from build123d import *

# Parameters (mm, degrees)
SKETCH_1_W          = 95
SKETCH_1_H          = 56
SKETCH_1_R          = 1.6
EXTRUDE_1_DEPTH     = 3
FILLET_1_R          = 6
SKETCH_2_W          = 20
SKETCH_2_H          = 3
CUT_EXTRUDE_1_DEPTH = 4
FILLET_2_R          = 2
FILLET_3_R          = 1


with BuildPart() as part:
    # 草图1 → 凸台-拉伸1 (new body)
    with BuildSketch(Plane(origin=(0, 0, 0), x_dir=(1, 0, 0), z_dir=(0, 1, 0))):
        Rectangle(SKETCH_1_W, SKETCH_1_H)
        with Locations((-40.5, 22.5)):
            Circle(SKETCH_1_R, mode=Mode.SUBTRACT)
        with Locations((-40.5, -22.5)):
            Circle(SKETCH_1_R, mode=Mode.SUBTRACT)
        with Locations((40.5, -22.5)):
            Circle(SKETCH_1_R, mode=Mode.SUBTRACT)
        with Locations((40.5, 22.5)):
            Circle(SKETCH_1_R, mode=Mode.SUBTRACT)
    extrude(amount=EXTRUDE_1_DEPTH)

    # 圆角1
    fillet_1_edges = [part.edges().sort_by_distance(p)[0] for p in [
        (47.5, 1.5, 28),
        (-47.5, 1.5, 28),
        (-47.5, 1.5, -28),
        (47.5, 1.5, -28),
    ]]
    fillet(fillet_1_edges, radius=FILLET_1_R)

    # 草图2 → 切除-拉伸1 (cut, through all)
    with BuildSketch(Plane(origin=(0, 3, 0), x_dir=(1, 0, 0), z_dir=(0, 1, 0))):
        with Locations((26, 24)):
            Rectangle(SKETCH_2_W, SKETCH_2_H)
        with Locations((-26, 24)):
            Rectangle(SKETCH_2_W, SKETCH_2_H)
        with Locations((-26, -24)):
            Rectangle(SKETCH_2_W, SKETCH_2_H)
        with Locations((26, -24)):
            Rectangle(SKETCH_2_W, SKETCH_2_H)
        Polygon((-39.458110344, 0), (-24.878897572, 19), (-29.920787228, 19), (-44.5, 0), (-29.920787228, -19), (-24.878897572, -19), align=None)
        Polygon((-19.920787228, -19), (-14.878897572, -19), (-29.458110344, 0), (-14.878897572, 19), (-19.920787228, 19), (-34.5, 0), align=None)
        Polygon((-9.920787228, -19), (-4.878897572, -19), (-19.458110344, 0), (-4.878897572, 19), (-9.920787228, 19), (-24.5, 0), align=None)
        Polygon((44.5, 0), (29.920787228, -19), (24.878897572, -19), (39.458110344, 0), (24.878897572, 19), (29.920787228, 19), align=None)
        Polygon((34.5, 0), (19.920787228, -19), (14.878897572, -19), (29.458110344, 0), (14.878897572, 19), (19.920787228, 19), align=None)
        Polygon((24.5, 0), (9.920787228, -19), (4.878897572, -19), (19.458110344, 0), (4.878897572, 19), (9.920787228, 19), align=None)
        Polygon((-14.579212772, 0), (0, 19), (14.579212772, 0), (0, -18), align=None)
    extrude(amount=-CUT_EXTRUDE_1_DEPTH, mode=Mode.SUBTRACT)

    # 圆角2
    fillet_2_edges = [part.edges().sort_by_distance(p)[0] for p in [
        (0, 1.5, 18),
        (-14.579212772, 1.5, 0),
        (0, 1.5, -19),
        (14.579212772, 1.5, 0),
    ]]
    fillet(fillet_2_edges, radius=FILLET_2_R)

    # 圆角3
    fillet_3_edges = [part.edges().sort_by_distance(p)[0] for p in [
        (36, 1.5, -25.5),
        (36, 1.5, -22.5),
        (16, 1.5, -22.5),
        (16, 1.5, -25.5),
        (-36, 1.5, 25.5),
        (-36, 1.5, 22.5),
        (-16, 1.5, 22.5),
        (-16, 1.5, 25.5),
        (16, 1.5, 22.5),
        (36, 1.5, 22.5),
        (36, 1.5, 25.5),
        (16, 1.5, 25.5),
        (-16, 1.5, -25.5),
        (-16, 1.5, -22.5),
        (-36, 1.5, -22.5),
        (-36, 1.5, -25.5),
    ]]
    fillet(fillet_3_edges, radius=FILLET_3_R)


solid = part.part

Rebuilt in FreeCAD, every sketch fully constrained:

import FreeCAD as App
import Part
import Sketcher
from FreeCAD import Vector
Q = App.Units.Quantity


def edges_at(feature, points):
    """Names of the edges that pass closest to the given points."""
    edges = feature.Shape.Edges
    near = lambda p: min(range(len(edges)), key=lambda i: edges[i].distToShape(Part.Vertex(*p))[0])
    return sorted({f"Edge{near(p) + 1}" for p in points})


def add_polygon(sketch, points):
    """Adds a closed chain of lines whose ends are joined by coincident constraints."""
    first, n = sketch.GeometryCount, len(points)
    for a, b in zip(points, points[1:] + points[:1]):
        sketch.addGeometry(Part.LineSegment(App.Vector(*a, 0), App.Vector(*b, 0)), False)
    for i in range(n):
        sketch.addConstraint(Sketcher.Constraint("Coincident", first + i, 2, first + (i + 1) % n, 1))

doc = App.newDocument("Part")
params = doc.addObject("Spreadsheet::Sheet", "Params")
for row, (alias, value) in enumerate([
    ("sketch1_diameter", "3.2 mm"),
    ("sketch1_width", "95 mm"),
    ("sketch1_height", "56 mm"),
    ("pad1_length", "3 mm"),
    ("fillet_radius", "6 mm"),
    ("sketch2_width", "20 mm"),
    ("sketch2_height", "3 mm"),
    ("fillet2_radius", "2 mm"),
    ("fillet3_radius", "1 mm"),
], start=1):
    params.set(f"A{row}", alias)
    params.set(f"B{row}", "=" + value)
    params.setAlias(f"B{row}", alias)

body = doc.addObject("PartDesign::Body", "Body")

# Sketch on XZ plane
sketch1 = body.newObject("Sketcher::SketchObject", "Sketch")
sketch1.AttachmentSupport = (doc.getObject("XZ_Plane"), [""])
sketch1.MapMode = "FlatFace"
add_polygon(sketch1, [(-47.5, -28), (-47.5, 28), (47.5, 28), (47.5, -28)])  # lines 0-3
sketch1.addGeometry(Part.Circle(Vector(-40.5, 22.5, 0), Vector(0, 0, 1), 1.6), False)  # 4
sketch1.addGeometry(Part.Circle(Vector(40.5, 22.5, 0), Vector(0, 0, 1), 1.6), False)  # 5
sketch1.addGeometry(Part.Circle(Vector(-40.5, -22.5, 0), Vector(0, 0, 1), 1.6), False)  # 6
sketch1.addGeometry(Part.Circle(Vector(40.5, -22.5, 0), Vector(0, 0, 1), 1.6), False)  # 7
sketch1.addConstraint([
    Sketcher.Constraint("Vertical", 0),
    Sketcher.Constraint("Horizontal", 1),
    Sketcher.Constraint("Vertical", 2),
    Sketcher.Constraint("Horizontal", 3),
    Sketcher.Constraint("Equal", 4, 5),
    Sketcher.Constraint("Equal", 5, 6),
    Sketcher.Constraint("Equal", 6, 7),
    Sketcher.Constraint("Symmetric", 5, 3, 6, 3, -1, 1),
    Sketcher.Constraint("Symmetric", 4, 3, 7, 3, -1, 1),
    Sketcher.Constraint("Symmetric", 0, 2, 2, 2, -1, 1),
    Sketcher.Constraint("Symmetric", 4, 3, 5, 3, -2),
    Sketcher.Constraint("Diameter", 4, 3.2),
    Sketcher.Constraint("DistanceX", 1, 1, 1, 2, 95.0),
    Sketcher.Constraint("DistanceY", 0, 1, 0, 2, 56.0),
    Sketcher.Constraint("DistanceX", 4, 3, 5, 3, 81.0),
    Sketcher.Constraint("DistanceY", 6, 3, 4, 3, 45.0),
])
sketch1.setExpression("Constraints[15]", "Params.sketch1_diameter")
sketch1.setExpression("Constraints[16]", "Params.sketch1_width")
sketch1.setExpression("Constraints[17]", "Params.sketch1_height")
pad1 = body.newObject("PartDesign::Pad", "Pad")
pad1.Profile = sketch1
pad1.setExpression("Length", "Params.pad1_length")
pad1.Reversed = True
doc.recompute()

fillet = body.newObject("PartDesign::Fillet", "Fillet")
fillet.Base = (pad1, edges_at(pad1, [
    (47.5, 1.5, 28),
    (-47.5, 1.5, 28),
    (-47.5, 1.5, -28),
    (47.5, 1.5, -28),
]))
fillet.setExpression("Radius", "Params.fillet_radius")

# Sketch on XZ plane
sketch2 = body.newObject("Sketcher::SketchObject", "Sketch001")
sketch2.AttachmentSupport = (doc.getObject("XZ_Plane"), [""])
sketch2.MapMode = "FlatFace"
sketch2.AttachmentOffset = App.Placement(Vector(0, 0, -3), App.Rotation())
add_polygon(sketch2, [(16, -25.5), (16, -22.5), (36, -22.5), (36, -25.5)])  # lines 0-3
add_polygon(sketch2, [(-36, -25.5), (-36, -22.5), (-16, -22.5), (-16, -25.5)])  # lines 4-7
add_polygon(sketch2, [(-36, 22.5), (-36, 25.5), (-16, 25.5), (-16, 22.5)])  # lines 8-11
add_polygon(sketch2, [(16, 22.5), (16, 25.5), (36, 25.5), (36, 22.5)])  # lines 12-15
add_polygon(sketch2, [(-39.5, 0), (-24.9, -19), (-29.9, -19), (-44.5, 0), (-29.9, 19), (-24.9, 19)])  # lines 16-21
add_polygon(sketch2, [(-19.9, 19), (-14.9, 19), (-29.5, 0), (-14.9, -19), (-19.9, -19), (-34.5, 0)])  # lines 22-27
add_polygon(sketch2, [(-9.9, 19), (-4.9, 19), (-19.5, 0), (-4.9, -19), (-9.9, -19), (-24.5, 0)])  # lines 28-33
add_polygon(sketch2, [(29.9, 19), (44.5, 0), (29.9, -19), (24.9, -19), (39.5, 0), (24.9, 19)])  # lines 34-39
add_polygon(sketch2, [(19.9, 19), (34.5, 0), (19.9, -19), (14.9, -19), (29.5, 0), (14.9, 19)])  # lines 40-45
add_polygon(sketch2, [(9.9, 19), (24.5, 0), (9.9, -19), (4.9, -19), (19.5, 0), (4.9, 19)])  # lines 46-51
add_polygon(sketch2, [(0, -19), (-14.6, 0), (0, 18), (14.6, 0)])  # lines 52-55
sketch2.addConstraint([
    Sketcher.Constraint("Vertical", 0),
    Sketcher.Constraint("Horizontal", 1),
    Sketcher.Constraint("Vertical", 2),
    Sketcher.Constraint("Horizontal", 3),
    Sketcher.Constraint("Vertical", 4),
    Sketcher.Constraint("Horizontal", 5),
    Sketcher.Constraint("Vertical", 6),
    Sketcher.Constraint("Horizontal", 7),
    Sketcher.Constraint("Vertical", 8),
    Sketcher.Constraint("Horizontal", 9),
    Sketcher.Constraint("Vertical", 10),
    Sketcher.Constraint("Horizontal", 11),
    Sketcher.Constraint("Vertical", 12),
    Sketcher.Constraint("Horizontal", 13),
    Sketcher.Constraint("Vertical", 14),
    Sketcher.Constraint("Horizontal", 15),
    Sketcher.Constraint("Horizontal", 17),
    Sketcher.Constraint("Horizontal", 20),
    Sketcher.Constraint("Horizontal", 22),
    Sketcher.Constraint("Horizontal", 25),
    Sketcher.Constraint("Horizontal", 28),
    Sketcher.Constraint("Horizontal", 31),
    Sketcher.Constraint("Horizontal", 36),
    Sketcher.Constraint("Horizontal", 39),
    Sketcher.Constraint("Horizontal", 42),
    Sketcher.Constraint("Horizontal", 45),
    Sketcher.Constraint("Horizontal", 48),
    Sketcher.Constraint("Horizontal", 51),
    Sketcher.Constraint("Symmetric", 2, 2, 8, 2, -1, 1),
    Sketcher.Constraint("Symmetric", 0, 2, 10, 2, -1, 1),
    Sketcher.Constraint("Symmetric", 6, 2, 12, 2, -1, 1),
    Sketcher.Constraint("Symmetric", 4, 2, 14, 2, -1, 1),
    Sketcher.Constraint("Symmetric", 18, 2, 34, 2, -1, 1),
    Sketcher.Constraint("Symmetric", 19, 2, 35, 2, -1, 1),
    Sketcher.Constraint("Symmetric", 21, 2, 37, 2, -1, 1),
    Sketcher.Constraint("Symmetric", 16, 2, 38, 2, -1, 1),
    Sketcher.Constraint("Symmetric", 26, 2, 40, 2, -1, 1),
    Sketcher.Constraint("Symmetric", 27, 2, 41, 2, -1, 1),
    Sketcher.Constraint("Symmetric", 23, 2, 43, 2, -1, 1),
    Sketcher.Constraint("Symmetric", 24, 2, 44, 2, -1, 1),
    Sketcher.Constraint("Symmetric", 32, 2, 46, 2, -1, 1),
    Sketcher.Constraint("Symmetric", 33, 2, 47, 2, -1, 1),
    Sketcher.Constraint("Symmetric", 29, 2, 49, 2, -1, 1),
    Sketcher.Constraint("Symmetric", 30, 2, 50, 2, -1, 1),
    Sketcher.Constraint("Symmetric", 52, 2, 54, 2, -1, 1),
    Sketcher.Constraint("Symmetric", 1, 2, 4, 2, -2),
    Sketcher.Constraint("Symmetric", 3, 2, 6, 2, -2),
    Sketcher.Constraint("Symmetric", 17, 2, 35, 2, -2),
    Sketcher.Constraint("Symmetric", 25, 2, 41, 2, -2),
    Sketcher.Constraint("Symmetric", 31, 2, 47, 2, -2),
    Sketcher.Constraint("PointOnObject", 18, 2, -1),
    Sketcher.Constraint("PointOnObject", 21, 2, -1),
    Sketcher.Constraint("PointOnObject", 23, 2, -1),
    Sketcher.Constraint("PointOnObject", 26, 2, -1),
    Sketcher.Constraint("PointOnObject", 29, 2, -1),
    Sketcher.Constraint("PointOnObject", 32, 2, -1),
    Sketcher.Constraint("PointOnObject", 52, 2, -1),
    Sketcher.Constraint("PointOnObject", 53, 2, -2),
    Sketcher.Constraint("PointOnObject", 55, 2, -2),
    Sketcher.Constraint("Parallel", 16, 18),
    Sketcher.Constraint("Parallel", 19, 21),
    Sketcher.Constraint("Parallel", 21, 23),
    Sketcher.Constraint("Parallel", 18, 24),
    Sketcher.Constraint("Parallel", 24, 26),
    Sketcher.Constraint("Parallel", 27, 29),
    Sketcher.Constraint("Parallel", 26, 30),
    Sketcher.Constraint("Parallel", 30, 32),
    Sketcher.Constraint("Parallel", 32, 34),
    Sketcher.Constraint("Parallel", 35, 37),
    Sketcher.Constraint("Parallel", 38, 40),
    Sketcher.Constraint("Parallel", 41, 43),
    Sketcher.Constraint("Parallel", 44, 46),
    Sketcher.Constraint("Parallel", 47, 49),
    Sketcher.Constraint("Parallel", 50, 52),
    Sketcher.Constraint("Horizontal", 20, 2, 22, 2),
    Sketcher.Constraint("Horizontal", 27, 2, 28, 2),
    Sketcher.Constraint("Horizontal", 48, 2, 55, 2),
    Sketcher.Constraint("Equal", 20, 22),
    Sketcher.Constraint("Equal", 25, 28),
    Sketcher.Constraint("DistanceX", 1, 1, 1, 2, 20.0),
    Sketcher.Constraint("DistanceY", 0, 1, 0, 2, 3.0),
    Sketcher.Constraint("DistanceX", -1, 1, 0, 2, 16.0),
    Sketcher.Constraint("DistanceY", 16, 2, -1, 1, 19.0),
    Sketcher.Constraint("DistanceY", -1, 1, 53, 2, 18.0),
    Sketcher.Constraint("Angle", 16, Q("-52.5 deg")),
    Sketcher.Constraint("DistanceY", 4, 2, 8, 2, 48.0),
    Sketcher.Constraint("DistanceX", 20, 2, 22, 2, 10.0),
    Sketcher.Constraint("DistanceX", 22, 2, 28, 2, 10.0),
    Sketcher.Constraint("DistanceX", 18, 2, -1, 1, 44.5),
    Sketcher.Constraint("DistanceX", 17, 2, 17, 1, 5.04189),
])
sketch2.setExpression("Constraints[135]", "Params.sketch2_width")
sketch2.setExpression("Constraints[136]", "Params.sketch2_height")
pocket1 = body.newObject("PartDesign::Pocket", "Pocket")
pocket1.Profile = sketch2
pocket1.Type = "ThroughAll"
pocket1.Reversed = True
doc.recompute()

fillet2 = body.newObject("PartDesign::Fillet", "Fillet001")
fillet2.Base = (pocket1, edges_at(pocket1, [
    (0, 1.5, 18),
    (-14.579, 1.5, 0),
    (0, 1.5, -19),
    (14.579, 1.5, 0),
]))
fillet2.setExpression("Radius", "Params.fillet2_radius")
doc.recompute()

fillet3 = body.newObject("PartDesign::Fillet", "Fillet002")
fillet3.Base = (fillet2, edges_at(fillet2, [
    (36, 1.5, -25.5),
    (36, 1.5, -22.5),
    (16, 1.5, -22.5),
    (16, 1.5, -25.5),
    (-36, 1.5, 25.5),
    (-36, 1.5, 22.5),
    (-16, 1.5, 22.5),
    (-16, 1.5, 25.5),
    (16, 1.5, 22.5),
    (36, 1.5, 22.5),
    (36, 1.5, 25.5),
    (16, 1.5, 25.5),
    (-16, 1.5, -25.5),
    (-16, 1.5, -22.5),
    (-36, 1.5, -22.5),
    (-36, 1.5, -25.5),
]))
fillet3.setExpression("Radius", "Params.fillet3_radius")

doc.recompute()
